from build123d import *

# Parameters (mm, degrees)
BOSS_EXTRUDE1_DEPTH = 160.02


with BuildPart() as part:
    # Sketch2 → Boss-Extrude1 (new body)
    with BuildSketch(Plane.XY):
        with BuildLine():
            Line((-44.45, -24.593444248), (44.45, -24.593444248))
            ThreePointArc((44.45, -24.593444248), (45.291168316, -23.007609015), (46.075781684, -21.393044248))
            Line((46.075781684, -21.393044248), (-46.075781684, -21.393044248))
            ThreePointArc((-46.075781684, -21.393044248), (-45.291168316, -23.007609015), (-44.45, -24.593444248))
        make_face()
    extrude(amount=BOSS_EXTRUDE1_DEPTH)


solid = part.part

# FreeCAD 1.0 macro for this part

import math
import FreeCAD as App
import Part
import Sketcher
from FreeCAD import Vector
Q = App.Units.Quantity

doc = App.newDocument("Part")
body = doc.addObject("PartDesign::Body", "Body")

# Sketch on XY plane
sketch1 = doc.addObject("Sketcher::SketchObject", "Sketch")
body.addObject(sketch1)
sketch1.AttachmentSupport = (doc.XY_Plane, [""])
sketch1.MapMode = "FlatFace"
sketch1.addGeometry(Part.LineSegment(Vector(-44.45, -24.593444, 0), Vector(44.45, -24.593444, 0)), False)
sketch1.addGeometry(Part.ArcOfCircle(Part.Circle(Vector(0, 0, 0), Vector(0, 0, 1), 50.8), math.radians(-28.955024), math.radians(-24.905502)), False)
sketch1.addGeometry(Part.LineSegment(Vector(46.075782, -21.393044, 0), Vector(-46.075782, -21.393044, 0)), False)
sketch1.addGeometry(Part.ArcOfCircle(Part.Circle(Vector(0, 0, 0), Vector(0, 0, 1), 50.8), math.radians(-155.094498), math.radians(-151.044976)), False)
sketch1.addConstraint(Sketcher.Constraint("Coincident", 0, 2, 1, 1))
sketch1.addConstraint(Sketcher.Constraint("Coincident", 1, 2, 2, 1))
sketch1.addConstraint(Sketcher.Constraint("Coincident", 2, 2, 3, 1))
sketch1.addConstraint(Sketcher.Constraint("Coincident", 3, 2, 0, 1))
sketch1.addConstraint(Sketcher.Constraint("Horizontal", 0))
sketch1.addConstraint(Sketcher.Constraint("Horizontal", 2))
sketch1.addConstraint(Sketcher.Constraint("Coincident", 1, 3, -1, 1))
sketch1.addConstraint(Sketcher.Constraint("Coincident", 3, 3, -1, 1))
sketch1.addConstraint(Sketcher.Constraint("Equal", 1, 3))
sketch1.addConstraint(Sketcher.Constraint("Radius", 1, Q("2 in")))
sketch1.addConstraint(Sketcher.Constraint("DistanceX", 0, 1, 0, 2, Q("3.5 in")))
sketch1.addConstraint(Sketcher.Constraint("DistanceY", 0, 2, 1, 2, Q("0.126 in")))
pad1 = doc.addObject("PartDesign::Pad", "Pad")
body.addObject(pad1)
pad1.Profile = sketch1
pad1.Length = Q("6.3 in")

doc.recompute()
